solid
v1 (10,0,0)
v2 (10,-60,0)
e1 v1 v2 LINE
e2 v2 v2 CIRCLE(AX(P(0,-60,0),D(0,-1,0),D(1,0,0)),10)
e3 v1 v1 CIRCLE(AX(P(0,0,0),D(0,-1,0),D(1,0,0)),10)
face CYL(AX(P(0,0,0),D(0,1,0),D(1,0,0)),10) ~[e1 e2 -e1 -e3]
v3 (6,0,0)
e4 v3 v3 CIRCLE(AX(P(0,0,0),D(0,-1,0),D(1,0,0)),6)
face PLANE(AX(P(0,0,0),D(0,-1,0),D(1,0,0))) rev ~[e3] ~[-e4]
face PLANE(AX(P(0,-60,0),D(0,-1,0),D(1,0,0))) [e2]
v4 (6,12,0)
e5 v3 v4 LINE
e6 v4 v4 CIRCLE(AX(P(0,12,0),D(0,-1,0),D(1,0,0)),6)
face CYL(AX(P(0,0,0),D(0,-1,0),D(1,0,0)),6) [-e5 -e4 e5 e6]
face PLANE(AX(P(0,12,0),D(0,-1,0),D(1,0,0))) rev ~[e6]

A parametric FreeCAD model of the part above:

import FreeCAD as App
import Part
import Sketcher

doc = App.newDocument("Part")
body = doc.addObject("PartDesign::Body", "Body")

# Sketch on XZ plane
sketch1 = body.newObject("Sketcher::SketchObject", "Sketch")
sketch1.AttachmentSupport = (doc.getObject("XZ_Plane"), [""])
sketch1.MapMode = "FlatFace"
sketch1.addGeometry(Part.Circle(App.Vector(0, 0, 0), App.Vector(0, 0, 1), 10), False)
sketch1.addConstraint([
    Sketcher.Constraint("Coincident", 0, 3, -1, 1),
    Sketcher.Constraint("Diameter", 0, 20.0),
])
pad1 = body.newObject("PartDesign::Pad", "Pad")
pad1.Profile = sketch1
pad1.Length = 60

# Sketch on XZ plane
sketch2 = body.newObject("Sketcher::SketchObject", "Sketch001")
sketch2.AttachmentSupport = (doc.getObject("XZ_Plane"), [""])
sketch2.MapMode = "FlatFace"
sketch2.addGeometry(Part.Circle(App.Vector(0, 0, 0), App.Vector(0, 0, 1), 6), False)
sketch2.addConstraint([
    Sketcher.Constraint("Coincident", 0, 3, -1, 1),
    Sketcher.Constraint("Diameter", 0, 12.0),
])
pad2 = body.newObject("PartDesign::Pad", "Pad001")
pad2.Profile = sketch2
pad2.Length = 12
pad2.Reversed = True

doc.recompute()
